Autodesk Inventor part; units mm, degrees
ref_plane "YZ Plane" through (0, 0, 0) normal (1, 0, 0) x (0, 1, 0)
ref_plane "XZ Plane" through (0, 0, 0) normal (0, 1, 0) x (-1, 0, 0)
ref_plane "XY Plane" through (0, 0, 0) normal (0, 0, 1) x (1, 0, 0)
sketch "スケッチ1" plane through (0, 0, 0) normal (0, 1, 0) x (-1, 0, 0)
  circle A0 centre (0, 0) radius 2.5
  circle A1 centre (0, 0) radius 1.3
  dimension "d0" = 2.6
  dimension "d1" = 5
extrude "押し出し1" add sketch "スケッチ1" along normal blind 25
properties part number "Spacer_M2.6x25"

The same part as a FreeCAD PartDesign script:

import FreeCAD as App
import Part
import Sketcher
Q = App.Units.Quantity

doc = App.newDocument("Part")
body = doc.addObject("PartDesign::Body", "Body")

# Sketch on XZ plane
sketch1 = body.newObject("Sketcher::SketchObject", "Sketch")
sketch1.AttachmentSupport = (doc.getObject("XZ_Plane"), [""])
sketch1.MapMode = "FlatFace"
sketch1.addGeometry([
    Part.Circle(App.Vector(0, 0, 0), App.Vector(0, 0, 1), 2.5),
    Part.Circle(App.Vector(0, 0, 0), App.Vector(0, 0, 1), 1.3),
], False)
sketch1.addConstraint([
    Sketcher.Constraint("Coincident", 0, 3, -1, 1),
    Sketcher.Constraint("Coincident", 1, 3, -1, 1),
    Sketcher.Constraint("Diameter", 0, Q("5 mm")),
    Sketcher.Constraint("Diameter", 1, Q("2.6 mm")),
])
pad1 = body.newObject("PartDesign::Pad", "Pad")
pad1.Profile = sketch1
pad1.Length = 25
pad1.Reversed = True

doc.recompute()
